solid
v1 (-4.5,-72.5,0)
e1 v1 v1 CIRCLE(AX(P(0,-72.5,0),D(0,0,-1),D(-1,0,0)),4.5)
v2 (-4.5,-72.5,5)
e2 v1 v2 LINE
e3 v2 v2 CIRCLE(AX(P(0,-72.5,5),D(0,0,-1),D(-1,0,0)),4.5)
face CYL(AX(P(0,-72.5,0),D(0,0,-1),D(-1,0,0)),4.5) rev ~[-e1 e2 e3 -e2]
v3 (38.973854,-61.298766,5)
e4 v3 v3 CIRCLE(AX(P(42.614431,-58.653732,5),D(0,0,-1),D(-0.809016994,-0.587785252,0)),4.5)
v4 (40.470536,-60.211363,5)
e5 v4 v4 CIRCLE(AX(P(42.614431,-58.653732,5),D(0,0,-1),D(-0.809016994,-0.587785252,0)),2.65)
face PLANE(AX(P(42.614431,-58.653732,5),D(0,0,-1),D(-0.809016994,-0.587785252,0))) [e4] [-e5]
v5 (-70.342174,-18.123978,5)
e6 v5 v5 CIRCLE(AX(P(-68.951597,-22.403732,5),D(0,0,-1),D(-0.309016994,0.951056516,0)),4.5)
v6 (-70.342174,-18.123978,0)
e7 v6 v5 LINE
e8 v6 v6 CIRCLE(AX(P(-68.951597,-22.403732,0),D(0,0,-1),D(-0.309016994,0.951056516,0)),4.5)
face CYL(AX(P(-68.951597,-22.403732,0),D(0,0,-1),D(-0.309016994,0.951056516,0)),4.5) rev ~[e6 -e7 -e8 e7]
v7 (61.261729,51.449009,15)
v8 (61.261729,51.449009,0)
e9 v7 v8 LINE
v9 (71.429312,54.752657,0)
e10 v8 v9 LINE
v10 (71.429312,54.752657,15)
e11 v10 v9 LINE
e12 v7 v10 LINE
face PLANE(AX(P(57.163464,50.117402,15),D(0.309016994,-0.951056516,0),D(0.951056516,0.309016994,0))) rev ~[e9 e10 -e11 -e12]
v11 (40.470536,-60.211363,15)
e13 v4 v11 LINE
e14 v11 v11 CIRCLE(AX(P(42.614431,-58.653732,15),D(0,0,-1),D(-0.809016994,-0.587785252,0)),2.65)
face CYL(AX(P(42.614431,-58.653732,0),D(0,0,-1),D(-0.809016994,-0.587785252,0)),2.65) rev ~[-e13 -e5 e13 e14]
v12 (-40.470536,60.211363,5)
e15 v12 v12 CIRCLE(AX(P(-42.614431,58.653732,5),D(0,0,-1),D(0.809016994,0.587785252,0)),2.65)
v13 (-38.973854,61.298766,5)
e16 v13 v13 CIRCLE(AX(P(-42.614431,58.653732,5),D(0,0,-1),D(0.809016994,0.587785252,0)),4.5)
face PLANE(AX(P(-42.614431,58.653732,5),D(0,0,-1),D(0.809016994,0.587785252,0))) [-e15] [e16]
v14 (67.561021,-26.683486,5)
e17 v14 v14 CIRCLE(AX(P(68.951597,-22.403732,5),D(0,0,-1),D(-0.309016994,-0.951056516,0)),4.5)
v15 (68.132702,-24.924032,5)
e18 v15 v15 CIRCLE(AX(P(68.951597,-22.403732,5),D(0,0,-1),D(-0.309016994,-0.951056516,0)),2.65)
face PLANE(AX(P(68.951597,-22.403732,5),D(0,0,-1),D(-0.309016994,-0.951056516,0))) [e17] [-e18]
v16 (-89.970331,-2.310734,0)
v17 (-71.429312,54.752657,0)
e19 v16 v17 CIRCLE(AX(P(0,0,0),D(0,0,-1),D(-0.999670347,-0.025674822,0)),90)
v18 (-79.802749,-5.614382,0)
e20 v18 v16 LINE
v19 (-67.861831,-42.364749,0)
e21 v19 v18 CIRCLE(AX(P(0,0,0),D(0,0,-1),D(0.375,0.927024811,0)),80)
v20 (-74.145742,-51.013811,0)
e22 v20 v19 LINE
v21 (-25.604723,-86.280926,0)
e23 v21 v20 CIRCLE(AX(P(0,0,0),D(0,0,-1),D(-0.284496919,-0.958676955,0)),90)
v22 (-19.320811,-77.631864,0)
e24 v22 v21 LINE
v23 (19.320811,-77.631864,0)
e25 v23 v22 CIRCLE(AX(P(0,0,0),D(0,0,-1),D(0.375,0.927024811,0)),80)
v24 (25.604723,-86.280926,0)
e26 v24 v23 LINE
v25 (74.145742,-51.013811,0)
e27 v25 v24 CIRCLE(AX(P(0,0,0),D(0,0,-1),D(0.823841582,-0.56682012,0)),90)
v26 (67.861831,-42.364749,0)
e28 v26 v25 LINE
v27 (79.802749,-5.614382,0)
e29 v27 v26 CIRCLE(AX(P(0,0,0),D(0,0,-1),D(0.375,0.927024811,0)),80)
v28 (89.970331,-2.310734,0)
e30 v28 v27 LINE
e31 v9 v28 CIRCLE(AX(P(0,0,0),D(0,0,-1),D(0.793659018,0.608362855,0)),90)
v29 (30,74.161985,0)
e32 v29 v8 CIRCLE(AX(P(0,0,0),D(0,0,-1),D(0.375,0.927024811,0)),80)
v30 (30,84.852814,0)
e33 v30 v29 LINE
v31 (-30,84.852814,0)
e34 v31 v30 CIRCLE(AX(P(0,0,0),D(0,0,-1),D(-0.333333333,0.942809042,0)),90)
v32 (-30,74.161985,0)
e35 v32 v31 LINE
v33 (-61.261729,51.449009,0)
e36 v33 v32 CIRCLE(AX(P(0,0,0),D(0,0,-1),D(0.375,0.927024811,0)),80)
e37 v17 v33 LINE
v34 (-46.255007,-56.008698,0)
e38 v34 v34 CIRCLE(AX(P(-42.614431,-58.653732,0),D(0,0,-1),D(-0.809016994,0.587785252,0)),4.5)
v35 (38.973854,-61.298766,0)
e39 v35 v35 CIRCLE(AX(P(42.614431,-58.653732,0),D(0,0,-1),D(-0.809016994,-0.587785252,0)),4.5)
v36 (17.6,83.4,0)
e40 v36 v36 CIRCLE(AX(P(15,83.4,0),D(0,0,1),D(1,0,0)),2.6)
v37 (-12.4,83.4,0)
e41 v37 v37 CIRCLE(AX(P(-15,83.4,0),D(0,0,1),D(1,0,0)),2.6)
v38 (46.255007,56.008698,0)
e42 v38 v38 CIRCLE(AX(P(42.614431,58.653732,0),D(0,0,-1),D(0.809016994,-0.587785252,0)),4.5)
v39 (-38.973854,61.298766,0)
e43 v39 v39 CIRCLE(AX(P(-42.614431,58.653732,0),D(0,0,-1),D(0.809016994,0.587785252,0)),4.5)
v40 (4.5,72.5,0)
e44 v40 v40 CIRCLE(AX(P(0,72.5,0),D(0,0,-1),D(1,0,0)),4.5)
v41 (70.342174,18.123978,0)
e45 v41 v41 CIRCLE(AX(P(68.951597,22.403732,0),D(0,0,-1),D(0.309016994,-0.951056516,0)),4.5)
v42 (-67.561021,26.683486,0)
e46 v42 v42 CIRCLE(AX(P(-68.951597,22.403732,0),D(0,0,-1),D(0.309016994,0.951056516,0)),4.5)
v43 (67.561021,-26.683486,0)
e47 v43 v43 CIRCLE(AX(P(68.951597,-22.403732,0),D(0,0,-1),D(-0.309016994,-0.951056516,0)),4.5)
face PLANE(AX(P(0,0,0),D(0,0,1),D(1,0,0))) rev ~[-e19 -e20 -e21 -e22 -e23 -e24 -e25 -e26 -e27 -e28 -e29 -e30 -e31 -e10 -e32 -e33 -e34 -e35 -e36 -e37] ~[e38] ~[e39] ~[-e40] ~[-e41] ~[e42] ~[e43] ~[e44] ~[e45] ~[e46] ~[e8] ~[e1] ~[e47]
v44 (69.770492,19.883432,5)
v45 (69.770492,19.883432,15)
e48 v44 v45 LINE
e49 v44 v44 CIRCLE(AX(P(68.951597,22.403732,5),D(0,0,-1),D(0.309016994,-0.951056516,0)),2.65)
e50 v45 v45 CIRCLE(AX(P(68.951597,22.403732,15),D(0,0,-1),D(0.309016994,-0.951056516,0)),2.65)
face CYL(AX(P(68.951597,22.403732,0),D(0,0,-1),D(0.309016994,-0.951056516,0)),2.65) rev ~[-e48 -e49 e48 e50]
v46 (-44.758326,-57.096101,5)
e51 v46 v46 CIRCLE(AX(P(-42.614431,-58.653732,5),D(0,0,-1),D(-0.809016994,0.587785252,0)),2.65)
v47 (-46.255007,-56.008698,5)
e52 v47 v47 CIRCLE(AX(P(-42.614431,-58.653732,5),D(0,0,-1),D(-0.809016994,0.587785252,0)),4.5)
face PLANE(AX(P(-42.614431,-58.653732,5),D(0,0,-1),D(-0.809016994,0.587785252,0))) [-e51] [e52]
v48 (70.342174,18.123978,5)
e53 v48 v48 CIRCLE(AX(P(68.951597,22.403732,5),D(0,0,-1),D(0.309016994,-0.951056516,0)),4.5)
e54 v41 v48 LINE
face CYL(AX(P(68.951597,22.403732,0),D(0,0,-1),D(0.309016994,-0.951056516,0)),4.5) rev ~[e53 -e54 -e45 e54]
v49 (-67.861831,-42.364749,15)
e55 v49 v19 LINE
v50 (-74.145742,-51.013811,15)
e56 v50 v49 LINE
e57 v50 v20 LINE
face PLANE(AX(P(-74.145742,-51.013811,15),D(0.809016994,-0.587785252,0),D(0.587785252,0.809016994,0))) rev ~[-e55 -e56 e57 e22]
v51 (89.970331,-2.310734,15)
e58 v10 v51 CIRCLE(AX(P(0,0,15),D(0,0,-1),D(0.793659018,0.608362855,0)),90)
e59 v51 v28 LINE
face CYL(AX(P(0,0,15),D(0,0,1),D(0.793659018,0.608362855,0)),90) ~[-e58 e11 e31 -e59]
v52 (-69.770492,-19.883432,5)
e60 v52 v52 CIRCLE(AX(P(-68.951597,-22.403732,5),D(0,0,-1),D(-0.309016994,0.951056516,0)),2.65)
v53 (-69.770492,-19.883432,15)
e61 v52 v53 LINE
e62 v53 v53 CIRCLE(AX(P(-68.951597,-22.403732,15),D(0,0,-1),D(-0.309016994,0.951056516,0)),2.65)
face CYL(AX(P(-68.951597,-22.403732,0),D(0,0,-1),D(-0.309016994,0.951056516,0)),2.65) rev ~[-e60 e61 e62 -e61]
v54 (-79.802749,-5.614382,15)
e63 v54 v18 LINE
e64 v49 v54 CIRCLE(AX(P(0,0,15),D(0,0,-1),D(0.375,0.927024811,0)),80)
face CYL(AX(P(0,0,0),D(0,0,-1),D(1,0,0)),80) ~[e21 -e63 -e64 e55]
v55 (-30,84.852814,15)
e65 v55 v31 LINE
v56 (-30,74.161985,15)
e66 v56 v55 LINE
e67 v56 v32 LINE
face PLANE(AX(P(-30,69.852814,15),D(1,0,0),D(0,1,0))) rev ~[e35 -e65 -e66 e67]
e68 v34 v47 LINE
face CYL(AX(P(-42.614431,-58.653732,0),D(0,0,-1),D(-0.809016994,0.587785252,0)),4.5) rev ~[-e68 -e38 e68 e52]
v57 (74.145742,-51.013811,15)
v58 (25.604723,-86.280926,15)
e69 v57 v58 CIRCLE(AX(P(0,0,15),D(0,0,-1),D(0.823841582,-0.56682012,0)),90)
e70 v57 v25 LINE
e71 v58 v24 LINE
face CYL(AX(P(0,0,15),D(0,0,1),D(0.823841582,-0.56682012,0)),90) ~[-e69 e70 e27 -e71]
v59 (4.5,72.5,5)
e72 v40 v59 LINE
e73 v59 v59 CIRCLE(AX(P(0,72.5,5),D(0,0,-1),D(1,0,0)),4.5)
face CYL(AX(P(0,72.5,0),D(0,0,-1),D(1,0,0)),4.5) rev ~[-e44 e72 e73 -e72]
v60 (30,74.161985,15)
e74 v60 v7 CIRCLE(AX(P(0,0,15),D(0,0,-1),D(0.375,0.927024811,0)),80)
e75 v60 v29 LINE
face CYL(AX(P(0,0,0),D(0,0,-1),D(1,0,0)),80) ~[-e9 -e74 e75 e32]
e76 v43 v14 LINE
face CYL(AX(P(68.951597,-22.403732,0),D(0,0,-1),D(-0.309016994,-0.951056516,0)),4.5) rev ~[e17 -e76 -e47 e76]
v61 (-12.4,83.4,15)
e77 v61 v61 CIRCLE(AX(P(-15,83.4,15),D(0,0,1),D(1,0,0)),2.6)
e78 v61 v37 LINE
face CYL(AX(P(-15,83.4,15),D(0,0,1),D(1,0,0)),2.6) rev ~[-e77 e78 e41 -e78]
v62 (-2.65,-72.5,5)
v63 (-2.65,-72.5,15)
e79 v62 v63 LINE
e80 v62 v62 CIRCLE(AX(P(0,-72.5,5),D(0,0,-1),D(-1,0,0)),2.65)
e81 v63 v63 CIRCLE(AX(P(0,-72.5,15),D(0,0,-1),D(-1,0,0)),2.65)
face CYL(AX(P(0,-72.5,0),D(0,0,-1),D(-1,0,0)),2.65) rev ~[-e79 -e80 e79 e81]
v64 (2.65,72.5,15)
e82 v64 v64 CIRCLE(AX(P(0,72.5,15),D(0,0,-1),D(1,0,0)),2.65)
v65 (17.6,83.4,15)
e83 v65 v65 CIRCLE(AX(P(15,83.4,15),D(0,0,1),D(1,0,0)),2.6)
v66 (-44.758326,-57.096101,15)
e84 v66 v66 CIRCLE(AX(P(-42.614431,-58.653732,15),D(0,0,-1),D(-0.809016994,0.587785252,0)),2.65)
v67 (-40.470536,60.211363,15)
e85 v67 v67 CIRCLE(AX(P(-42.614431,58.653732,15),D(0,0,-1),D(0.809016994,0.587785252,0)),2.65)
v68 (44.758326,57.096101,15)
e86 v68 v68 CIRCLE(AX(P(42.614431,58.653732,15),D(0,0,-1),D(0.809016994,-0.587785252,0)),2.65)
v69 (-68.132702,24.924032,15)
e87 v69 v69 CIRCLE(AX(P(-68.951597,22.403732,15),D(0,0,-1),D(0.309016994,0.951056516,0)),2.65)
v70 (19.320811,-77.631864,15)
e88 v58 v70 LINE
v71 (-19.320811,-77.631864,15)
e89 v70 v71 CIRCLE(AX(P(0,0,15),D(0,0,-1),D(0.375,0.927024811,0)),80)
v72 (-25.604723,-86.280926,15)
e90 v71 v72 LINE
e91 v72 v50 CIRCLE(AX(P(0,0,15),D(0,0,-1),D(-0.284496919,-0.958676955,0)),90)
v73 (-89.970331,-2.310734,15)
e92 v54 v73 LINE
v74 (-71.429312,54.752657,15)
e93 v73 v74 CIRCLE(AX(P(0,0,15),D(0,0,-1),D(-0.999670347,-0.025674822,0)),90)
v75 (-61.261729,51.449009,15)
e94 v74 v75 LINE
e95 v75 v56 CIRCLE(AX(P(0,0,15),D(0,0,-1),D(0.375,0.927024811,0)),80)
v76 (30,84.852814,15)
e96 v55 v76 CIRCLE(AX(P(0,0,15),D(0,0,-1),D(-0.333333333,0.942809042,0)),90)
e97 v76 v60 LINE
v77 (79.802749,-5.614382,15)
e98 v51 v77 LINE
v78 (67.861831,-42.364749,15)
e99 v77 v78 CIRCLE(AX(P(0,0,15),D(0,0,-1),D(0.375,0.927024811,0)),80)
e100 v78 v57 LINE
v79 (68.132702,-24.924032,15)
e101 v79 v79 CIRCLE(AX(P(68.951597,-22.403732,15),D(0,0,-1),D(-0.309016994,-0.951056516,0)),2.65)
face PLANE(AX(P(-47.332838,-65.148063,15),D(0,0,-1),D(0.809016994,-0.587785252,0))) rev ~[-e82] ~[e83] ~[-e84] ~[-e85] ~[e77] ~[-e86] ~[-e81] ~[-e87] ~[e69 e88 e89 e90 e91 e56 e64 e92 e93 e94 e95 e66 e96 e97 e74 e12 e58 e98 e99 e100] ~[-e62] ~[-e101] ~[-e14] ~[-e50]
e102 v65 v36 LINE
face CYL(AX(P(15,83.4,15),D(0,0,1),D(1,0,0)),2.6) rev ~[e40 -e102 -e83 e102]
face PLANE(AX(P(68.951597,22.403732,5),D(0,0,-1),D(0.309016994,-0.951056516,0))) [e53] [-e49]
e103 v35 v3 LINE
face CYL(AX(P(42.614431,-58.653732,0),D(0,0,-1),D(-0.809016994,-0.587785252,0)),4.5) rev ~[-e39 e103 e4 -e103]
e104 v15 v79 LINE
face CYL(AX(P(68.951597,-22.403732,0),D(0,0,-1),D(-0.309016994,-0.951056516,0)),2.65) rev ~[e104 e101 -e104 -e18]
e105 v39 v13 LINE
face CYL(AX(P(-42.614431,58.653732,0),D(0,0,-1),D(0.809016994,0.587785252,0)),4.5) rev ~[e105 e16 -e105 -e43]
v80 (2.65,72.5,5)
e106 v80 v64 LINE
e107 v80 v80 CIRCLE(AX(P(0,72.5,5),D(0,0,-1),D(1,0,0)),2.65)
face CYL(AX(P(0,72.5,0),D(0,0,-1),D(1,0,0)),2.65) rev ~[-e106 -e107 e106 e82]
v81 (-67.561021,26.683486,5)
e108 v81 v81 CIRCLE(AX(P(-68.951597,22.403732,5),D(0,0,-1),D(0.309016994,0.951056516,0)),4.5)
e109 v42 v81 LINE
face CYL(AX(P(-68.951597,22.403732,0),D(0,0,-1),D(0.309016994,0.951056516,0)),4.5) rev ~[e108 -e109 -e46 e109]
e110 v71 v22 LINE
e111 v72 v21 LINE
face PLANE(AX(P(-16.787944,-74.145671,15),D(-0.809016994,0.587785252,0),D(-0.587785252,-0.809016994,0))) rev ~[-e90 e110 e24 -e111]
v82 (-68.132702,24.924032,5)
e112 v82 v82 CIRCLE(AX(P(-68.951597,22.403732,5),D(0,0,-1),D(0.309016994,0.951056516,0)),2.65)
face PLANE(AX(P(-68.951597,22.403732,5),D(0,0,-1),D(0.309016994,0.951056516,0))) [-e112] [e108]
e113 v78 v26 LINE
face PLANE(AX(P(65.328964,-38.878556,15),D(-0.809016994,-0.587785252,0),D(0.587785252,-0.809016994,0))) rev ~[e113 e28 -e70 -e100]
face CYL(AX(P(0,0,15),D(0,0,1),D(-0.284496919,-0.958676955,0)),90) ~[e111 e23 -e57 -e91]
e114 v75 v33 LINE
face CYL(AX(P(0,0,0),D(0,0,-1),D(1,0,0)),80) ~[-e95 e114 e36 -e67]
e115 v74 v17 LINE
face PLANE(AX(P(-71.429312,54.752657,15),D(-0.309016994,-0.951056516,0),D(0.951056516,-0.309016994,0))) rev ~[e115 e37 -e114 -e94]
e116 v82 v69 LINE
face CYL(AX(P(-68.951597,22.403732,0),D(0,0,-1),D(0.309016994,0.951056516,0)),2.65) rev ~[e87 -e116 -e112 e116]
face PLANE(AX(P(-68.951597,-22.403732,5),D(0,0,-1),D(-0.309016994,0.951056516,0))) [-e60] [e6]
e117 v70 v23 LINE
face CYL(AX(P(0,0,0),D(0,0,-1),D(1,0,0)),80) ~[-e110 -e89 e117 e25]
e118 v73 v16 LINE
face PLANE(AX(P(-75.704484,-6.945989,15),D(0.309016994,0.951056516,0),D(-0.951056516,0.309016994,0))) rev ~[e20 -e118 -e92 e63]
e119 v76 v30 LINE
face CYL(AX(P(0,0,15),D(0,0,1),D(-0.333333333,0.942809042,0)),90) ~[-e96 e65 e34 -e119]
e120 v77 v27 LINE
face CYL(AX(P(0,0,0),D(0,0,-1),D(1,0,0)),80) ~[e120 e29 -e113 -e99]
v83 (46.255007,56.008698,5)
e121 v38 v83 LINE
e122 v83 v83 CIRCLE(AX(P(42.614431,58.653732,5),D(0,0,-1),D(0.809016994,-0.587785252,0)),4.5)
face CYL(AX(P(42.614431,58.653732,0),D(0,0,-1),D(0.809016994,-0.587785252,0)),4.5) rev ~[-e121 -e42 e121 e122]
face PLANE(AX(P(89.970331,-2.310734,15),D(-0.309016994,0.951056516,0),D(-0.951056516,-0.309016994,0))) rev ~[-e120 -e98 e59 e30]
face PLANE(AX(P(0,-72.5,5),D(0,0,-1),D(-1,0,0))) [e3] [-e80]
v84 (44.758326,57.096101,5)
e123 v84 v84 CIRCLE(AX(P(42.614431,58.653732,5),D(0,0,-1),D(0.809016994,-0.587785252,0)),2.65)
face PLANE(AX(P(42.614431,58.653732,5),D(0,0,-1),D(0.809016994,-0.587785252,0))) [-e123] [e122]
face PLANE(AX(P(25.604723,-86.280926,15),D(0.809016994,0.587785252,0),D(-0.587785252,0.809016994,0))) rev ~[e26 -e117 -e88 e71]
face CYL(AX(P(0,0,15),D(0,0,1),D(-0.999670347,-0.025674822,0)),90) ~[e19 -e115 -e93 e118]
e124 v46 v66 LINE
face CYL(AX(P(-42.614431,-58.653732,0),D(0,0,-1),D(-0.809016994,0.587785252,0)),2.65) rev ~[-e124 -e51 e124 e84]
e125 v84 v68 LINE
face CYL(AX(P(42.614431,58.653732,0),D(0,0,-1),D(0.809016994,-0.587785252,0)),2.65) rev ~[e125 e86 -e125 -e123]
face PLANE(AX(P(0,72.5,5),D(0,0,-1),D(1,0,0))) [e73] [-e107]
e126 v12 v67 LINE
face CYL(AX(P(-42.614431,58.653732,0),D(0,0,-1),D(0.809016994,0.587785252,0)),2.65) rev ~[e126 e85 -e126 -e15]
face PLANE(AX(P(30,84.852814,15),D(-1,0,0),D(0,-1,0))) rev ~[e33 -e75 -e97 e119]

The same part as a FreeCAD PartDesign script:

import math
import FreeCAD as App
import Part
import Sketcher

V = App.Vector

doc = App.newDocument("Part")
body = doc.addObject("PartDesign::Body", "Body")

# Sketch on XY plane
sketch1 = body.newObject("Sketcher::SketchObject", "Sketch")
sketch1.AttachmentSupport = (doc.getObject("XY_Plane"), [""])
sketch1.MapMode = "FlatFace"
sketch1.addGeometry(Part.Circle(V(0, 0, 0), V(0, 0, 1), 80), False)
sketch1.addConstraint(Sketcher.Constraint("Coincident", 0, 3, -1, 1))
sketch1.addConstraint(Sketcher.Constraint("Diameter", 0, 160.0))
pad1 = body.newObject("PartDesign::Pad", "Pad")
pad1.Profile = sketch1
pad1.Length = 15

# Sketch on XY plane
sketch2 = body.newObject("Sketcher::SketchObject", "Sketch001")
sketch2.AttachmentSupport = (doc.getObject("XY_Plane"), [""])
sketch2.MapMode = "FlatFace"
sketch2.addGeometry(Part.Circle(V(0, -72.5, 0), V(0, 0, 1), 2.65), False)
sketch2.addConstraint(Sketcher.Constraint("PointOnObject", 0, 3, -2))
sketch2.addConstraint(Sketcher.Constraint("Diameter", 0, 5.3))
sketch2.addConstraint(Sketcher.Constraint("DistanceY", 0, 3, -1, 1, 72.5))
pocket1 = body.newObject("PartDesign::Pocket", "Pocket")
pocket1.Profile = sketch2
pocket1.Length = 15
pocket1.Reversed = True
doc.recompute()

polarpattern = body.newObject("PartDesign::PolarPattern", "PolarPattern")
polarpattern.Originals = [pocket1]
polarpattern.Axis = (doc.getObject("Z_Axis"), [""])
polarpattern.Angle = 360
polarpattern.Occurrences = 10
body.Tip = polarpattern

# Sketch on XY plane
sketch3 = body.newObject("Sketcher::SketchObject", "Sketch002")
sketch3.AttachmentSupport = (doc.getObject("XY_Plane"), [""])
sketch3.MapMode = "FlatFace"
sketch3.addGeometry(Part.Circle(V(0, -72.5, 0), V(0, 0, 1), 4.5), False)
sketch3.addConstraint(Sketcher.Constraint("PointOnObject", 0, 3, -2))
sketch3.addConstraint(Sketcher.Constraint("Diameter", 0, 9.0))
sketch3.addConstraint(Sketcher.Constraint("DistanceY", 0, 3, -1, 1, 72.5))
pocket2 = body.newObject("PartDesign::Pocket", "Pocket001")
pocket2.Profile = sketch3
pocket2.Length = 5
pocket2.Reversed = True
doc.recompute()

polarpattern2 = body.newObject("PartDesign::PolarPattern", "PolarPattern001")
polarpattern2.Originals = [pocket2]
polarpattern2.Axis = (doc.getObject("Z_Axis"), [""])
polarpattern2.Angle = 360
polarpattern2.Occurrences = 10
body.Tip = polarpattern2

# Sketch on XY plane
sketch4 = body.newObject("Sketcher::SketchObject", "Sketch003")
sketch4.AttachmentSupport = (doc.getObject("XY_Plane"), [""])
sketch4.MapMode = "FlatFace"
sketch4.AttachmentOffset = App.Placement(V(0, 0, 15), App.Rotation())
sketch4.addGeometry(Part.LineSegment(V(-30, 84.852814, 0), V(-30, 69.852814, 0)), False)
sketch4.addGeometry(Part.LineSegment(V(-30, 69.852814, 0), V(0, 80, 0)), False)
sketch4.addGeometry(Part.LineSegment(V(0, 80, 0), V(30, 69.852814, 0)), False)
sketch4.addGeometry(Part.LineSegment(V(30, 69.852814, 0), V(30, 84.852814, 0)), False)
sketch4.addGeometry(Part.ArcOfCircle(Part.Circle(V(0, 0, 0), V(0, 0, 1), 90), math.radians(70.528779), math.radians(109.471221)), False)
sketch4.addConstraint(Sketcher.Constraint("Coincident", 0, 2, 1, 1))
sketch4.addConstraint(Sketcher.Constraint("Coincident", 1, 2, 2, 1))
sketch4.addConstraint(Sketcher.Constraint("Coincident", 2, 2, 3, 1))
sketch4.addConstraint(Sketcher.Constraint("Coincident", 3, 2, 4, 1))
sketch4.addConstraint(Sketcher.Constraint("Coincident", 4, 2, 0, 1))
sketch4.addConstraint(Sketcher.Constraint("Vertical", 0))
sketch4.addConstraint(Sketcher.Constraint("Vertical", 3))
sketch4.addConstraint(Sketcher.Constraint("Coincident", 4, 3, -1, 1))
sketch4.addConstraint(Sketcher.Constraint("Symmetric", 0, 2, 2, 2, -2))
sketch4.addConstraint(Sketcher.Constraint("PointOnObject", 1, 2, -2))
sketch4.addConstraint(Sketcher.Constraint("Radius", 4, 90.0))
sketch4.addConstraint(Sketcher.Constraint("DistanceY", 0, 2, 0, 1, 15.0))
sketch4.addConstraint(Sketcher.Constraint("DistanceX", 0, 2, -1, 1, 30.0))
sketch4.addConstraint(Sketcher.Constraint("DistanceY", -1, 1, 1, 2, 80.0))
pad2 = body.newObject("PartDesign::Pad", "Pad001")
pad2.Profile = sketch4
pad2.Length = 15
pad2.Reversed = True
doc.recompute()

polarpattern3 = body.newObject("PartDesign::PolarPattern", "PolarPattern002")
polarpattern3.Originals = [pad2]
polarpattern3.Axis = (doc.getObject("Z_Axis"), [""])
polarpattern3.Angle = 360
polarpattern3.Occurrences = 5
body.Tip = polarpattern3

# Sketch on XY plane
sketch5 = body.newObject("Sketcher::SketchObject", "Sketch004")
sketch5.AttachmentSupport = (doc.getObject("XY_Plane"), [""])
sketch5.MapMode = "FlatFace"
sketch5.AttachmentOffset = App.Placement(V(0, 0, 15), App.Rotation())
sketch5.addGeometry(Part.Circle(V(-15, 83.4, 0), V(0, 0, 1), 2.6), False)
sketch5.addGeometry(Part.Circle(V(15, 83.4, 0), V(0, 0, 1), 2.6), False)
sketch5.addConstraint(Sketcher.Constraint("Equal", 0, 1))
sketch5.addConstraint(Sketcher.Constraint("Symmetric", 0, 3, 1, 3, -2))
sketch5.addConstraint(Sketcher.Constraint("Diameter", 0, 5.2))
sketch5.addConstraint(Sketcher.Constraint("DistanceX", 0, 3, -1, 1, 15.0))
sketch5.addConstraint(Sketcher.Constraint("DistanceY", -1, 1, 0, 3, 83.4))
pocket3 = body.newObject("PartDesign::Pocket", "Pocket002")
pocket3.Profile = sketch5
pocket3.Length = 15

doc.recompute()
